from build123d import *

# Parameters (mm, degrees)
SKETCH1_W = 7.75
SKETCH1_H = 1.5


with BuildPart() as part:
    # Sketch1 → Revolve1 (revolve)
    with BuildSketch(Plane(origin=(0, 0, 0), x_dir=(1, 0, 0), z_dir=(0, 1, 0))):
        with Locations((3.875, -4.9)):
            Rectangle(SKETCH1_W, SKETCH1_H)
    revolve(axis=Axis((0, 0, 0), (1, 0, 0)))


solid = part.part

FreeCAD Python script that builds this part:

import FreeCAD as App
import Part
import Sketcher

V = App.Vector


def add_polygon(sketch, points):
    """Adds a closed chain of lines whose ends are joined by coincident constraints."""
    first, n = sketch.GeometryCount, len(points)
    for a, b in zip(points, points[1:] + points[:1]):
        sketch.addGeometry(Part.LineSegment(App.Vector(*a, 0), App.Vector(*b, 0)), False)
    for i in range(n):
        sketch.addConstraint(Sketcher.Constraint("Coincident", first + i, 2, first + (i + 1) % n, 1))

doc = App.newDocument("Part")
body = doc.addObject("PartDesign::Body", "Body")

# Sketch on XZ plane
sketch1 = body.newObject("Sketcher::SketchObject", "Sketch")
sketch1.AttachmentSupport = (doc.getObject("XZ_Plane"), [""])
sketch1.MapMode = "FlatFace"
add_polygon(sketch1, [(0, 4.15), (0, 5.65), (7.75, 5.65), (7.75, 4.15)])  # lines 0-3
sketch1.addConstraint([
    Sketcher.Constraint("Vertical", 0),
    Sketcher.Constraint("Horizontal", 1),
    Sketcher.Constraint("Vertical", 2),
    Sketcher.Constraint("Horizontal", 3),
    Sketcher.Constraint("PointOnObject", 0, 2, -2),
    Sketcher.Constraint("DistanceY", 0, 1, 0, 2, 1.5),
    Sketcher.Constraint("DistanceX", 1, 1, 1, 2, 7.75),
    Sketcher.Constraint("DistanceY", -1, 1, 0, 2, 5.65),
])
revolution = body.newObject("PartDesign::Revolution", "Revolution")
revolution.Profile = sketch1
revolution.ReferenceAxis = (sketch1, ["H_Axis"])
revolution.Angle = 360

doc.recompute()
